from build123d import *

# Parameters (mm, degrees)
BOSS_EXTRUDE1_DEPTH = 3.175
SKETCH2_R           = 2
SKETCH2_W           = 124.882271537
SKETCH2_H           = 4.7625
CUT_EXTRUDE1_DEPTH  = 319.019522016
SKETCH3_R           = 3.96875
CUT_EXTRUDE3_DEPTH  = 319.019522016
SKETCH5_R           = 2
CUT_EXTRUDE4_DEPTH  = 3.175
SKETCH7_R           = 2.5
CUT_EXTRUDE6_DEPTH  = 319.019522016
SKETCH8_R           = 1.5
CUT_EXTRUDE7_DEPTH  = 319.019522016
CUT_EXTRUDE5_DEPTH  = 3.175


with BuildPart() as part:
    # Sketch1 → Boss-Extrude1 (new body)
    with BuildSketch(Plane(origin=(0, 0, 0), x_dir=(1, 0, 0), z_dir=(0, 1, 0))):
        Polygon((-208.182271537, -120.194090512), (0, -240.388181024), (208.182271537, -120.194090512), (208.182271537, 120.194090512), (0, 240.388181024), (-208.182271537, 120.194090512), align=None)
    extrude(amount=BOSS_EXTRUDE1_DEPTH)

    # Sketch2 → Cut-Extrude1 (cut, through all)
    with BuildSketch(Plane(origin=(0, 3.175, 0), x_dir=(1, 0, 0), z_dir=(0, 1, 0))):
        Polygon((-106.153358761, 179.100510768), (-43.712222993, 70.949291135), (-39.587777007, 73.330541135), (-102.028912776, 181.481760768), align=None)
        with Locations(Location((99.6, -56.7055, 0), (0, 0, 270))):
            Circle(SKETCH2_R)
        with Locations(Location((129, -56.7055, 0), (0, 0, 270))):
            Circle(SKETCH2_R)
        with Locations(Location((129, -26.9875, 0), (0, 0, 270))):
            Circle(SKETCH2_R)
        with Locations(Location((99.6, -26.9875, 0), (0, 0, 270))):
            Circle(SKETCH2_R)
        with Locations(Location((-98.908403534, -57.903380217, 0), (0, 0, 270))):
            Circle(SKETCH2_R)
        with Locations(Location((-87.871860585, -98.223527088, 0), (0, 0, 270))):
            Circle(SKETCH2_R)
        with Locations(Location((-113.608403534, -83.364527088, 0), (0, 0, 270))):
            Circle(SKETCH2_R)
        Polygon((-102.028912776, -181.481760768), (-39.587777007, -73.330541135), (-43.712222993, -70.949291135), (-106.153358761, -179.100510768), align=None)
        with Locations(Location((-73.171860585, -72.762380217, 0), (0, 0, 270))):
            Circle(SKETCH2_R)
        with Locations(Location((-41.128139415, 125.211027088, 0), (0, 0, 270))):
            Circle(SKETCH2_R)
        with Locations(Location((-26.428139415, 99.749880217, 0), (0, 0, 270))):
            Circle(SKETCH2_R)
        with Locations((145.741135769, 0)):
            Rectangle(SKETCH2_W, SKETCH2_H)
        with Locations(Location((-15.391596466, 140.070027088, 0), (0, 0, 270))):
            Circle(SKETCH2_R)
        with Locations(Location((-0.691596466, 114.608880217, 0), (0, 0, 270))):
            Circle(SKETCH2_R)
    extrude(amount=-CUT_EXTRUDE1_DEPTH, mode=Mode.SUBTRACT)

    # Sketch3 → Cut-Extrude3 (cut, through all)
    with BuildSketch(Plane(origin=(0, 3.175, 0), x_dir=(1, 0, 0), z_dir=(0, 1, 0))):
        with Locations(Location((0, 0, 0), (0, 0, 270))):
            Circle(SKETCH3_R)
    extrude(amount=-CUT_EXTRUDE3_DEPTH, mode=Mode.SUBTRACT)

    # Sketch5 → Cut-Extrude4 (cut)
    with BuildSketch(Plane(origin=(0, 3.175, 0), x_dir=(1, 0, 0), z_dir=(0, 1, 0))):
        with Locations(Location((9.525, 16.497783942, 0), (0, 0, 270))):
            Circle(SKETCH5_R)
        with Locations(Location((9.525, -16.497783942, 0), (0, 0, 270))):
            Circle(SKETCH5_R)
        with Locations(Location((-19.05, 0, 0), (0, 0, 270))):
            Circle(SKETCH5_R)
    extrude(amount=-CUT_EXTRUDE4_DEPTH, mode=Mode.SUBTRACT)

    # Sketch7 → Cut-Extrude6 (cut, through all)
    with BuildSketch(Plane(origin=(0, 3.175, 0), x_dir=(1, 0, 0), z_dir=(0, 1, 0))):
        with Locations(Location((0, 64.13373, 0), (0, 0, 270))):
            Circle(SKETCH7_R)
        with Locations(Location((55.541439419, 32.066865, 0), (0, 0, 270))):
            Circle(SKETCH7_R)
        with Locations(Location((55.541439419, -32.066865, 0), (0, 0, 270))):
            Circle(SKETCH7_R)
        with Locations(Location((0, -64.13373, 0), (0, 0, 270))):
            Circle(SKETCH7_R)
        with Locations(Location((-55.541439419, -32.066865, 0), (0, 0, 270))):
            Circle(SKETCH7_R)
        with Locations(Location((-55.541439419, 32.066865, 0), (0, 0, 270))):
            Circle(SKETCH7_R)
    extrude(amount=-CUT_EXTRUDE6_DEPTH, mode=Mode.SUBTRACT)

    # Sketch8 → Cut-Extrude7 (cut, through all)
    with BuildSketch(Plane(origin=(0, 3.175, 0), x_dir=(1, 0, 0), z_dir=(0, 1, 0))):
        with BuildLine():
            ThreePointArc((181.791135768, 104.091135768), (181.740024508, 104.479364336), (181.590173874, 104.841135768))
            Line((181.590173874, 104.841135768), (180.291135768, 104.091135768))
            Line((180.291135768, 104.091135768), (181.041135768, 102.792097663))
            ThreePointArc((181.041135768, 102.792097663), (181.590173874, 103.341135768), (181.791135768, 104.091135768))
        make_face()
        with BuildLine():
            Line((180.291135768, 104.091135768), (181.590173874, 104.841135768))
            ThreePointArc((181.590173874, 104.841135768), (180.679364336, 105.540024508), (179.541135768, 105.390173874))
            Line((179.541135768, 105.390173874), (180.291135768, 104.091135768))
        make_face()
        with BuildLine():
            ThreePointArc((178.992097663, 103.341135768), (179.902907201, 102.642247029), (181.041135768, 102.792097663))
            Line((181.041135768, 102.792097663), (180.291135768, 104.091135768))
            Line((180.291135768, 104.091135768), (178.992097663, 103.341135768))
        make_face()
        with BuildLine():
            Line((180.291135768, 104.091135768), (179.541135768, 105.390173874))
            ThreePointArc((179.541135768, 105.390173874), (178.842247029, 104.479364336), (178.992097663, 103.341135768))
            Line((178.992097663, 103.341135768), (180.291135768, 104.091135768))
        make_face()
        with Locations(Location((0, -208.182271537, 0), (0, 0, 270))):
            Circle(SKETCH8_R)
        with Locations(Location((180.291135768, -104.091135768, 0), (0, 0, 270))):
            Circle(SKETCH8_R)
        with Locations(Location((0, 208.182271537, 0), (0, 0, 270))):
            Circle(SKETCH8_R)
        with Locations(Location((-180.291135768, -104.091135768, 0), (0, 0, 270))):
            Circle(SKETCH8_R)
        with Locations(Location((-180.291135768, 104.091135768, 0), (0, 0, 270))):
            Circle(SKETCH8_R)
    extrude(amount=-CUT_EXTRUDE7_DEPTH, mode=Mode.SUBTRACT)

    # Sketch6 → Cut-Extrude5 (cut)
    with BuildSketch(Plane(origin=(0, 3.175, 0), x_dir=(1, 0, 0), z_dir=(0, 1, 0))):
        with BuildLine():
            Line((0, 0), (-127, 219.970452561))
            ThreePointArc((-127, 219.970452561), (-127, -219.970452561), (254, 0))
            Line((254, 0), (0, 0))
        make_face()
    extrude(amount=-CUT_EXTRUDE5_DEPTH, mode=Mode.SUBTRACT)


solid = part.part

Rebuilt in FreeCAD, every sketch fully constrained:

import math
import FreeCAD as App
import Part
import Sketcher

V = App.Vector
Q = App.Units.Quantity


def add_polygon(sketch, points):
    """Adds a closed chain of lines whose ends are joined by coincident constraints."""
    first, n = sketch.GeometryCount, len(points)
    for a, b in zip(points, points[1:] + points[:1]):
        sketch.addGeometry(Part.LineSegment(App.Vector(*a, 0), App.Vector(*b, 0)), False)
    for i in range(n):
        sketch.addConstraint(Sketcher.Constraint("Coincident", first + i, 2, first + (i + 1) % n, 1))

doc = App.newDocument("Part")
body = doc.addObject("PartDesign::Body", "Body")

sketch1 = doc.addObject("Sketcher::SketchObject", "Sketch")
body.addObject(sketch1)
sketch1.AttachmentSupport = (doc.XZ_Plane, [""])
sketch1.MapMode = "FlatFace"
add_polygon(sketch1, [(-208.182272, 120.194091), (0, 240.388181), (208.182272, 120.194091), (208.182272, -120.194091), (0, -240.388181), (-208.182272, -120.194091)])
sketch1.addConstraint(Sketcher.Constraint("Vertical", 2))
sketch1.addConstraint(Sketcher.Constraint("Vertical", 5))
sketch1.addConstraint(Sketcher.Constraint("Symmetric", 0, 2, 3, 2, -1, 1))
sketch1.addConstraint(Sketcher.Constraint("Symmetric", 1, 2, 4, 2, -1, 1))
sketch1.addConstraint(Sketcher.Constraint("PointOnObject", 0, 2, -2))
sketch1.addConstraint(Sketcher.Constraint("Parallel", 0, 3))
sketch1.addConstraint(Sketcher.Constraint("Horizontal", 2, 2, 4, 2))
sketch1.addConstraint(Sketcher.Constraint("Angle", 0, Q("30 deg")))
sketch1.addConstraint(Sketcher.Constraint("DistanceY", 2, 2, 2, 1, Q("240.388181 mm")))
sketch1.addConstraint(Sketcher.Constraint("Distance", 0, Q("240.388181 mm")))
pad1 = doc.addObject("PartDesign::Pad", "Pad")
body.addObject(pad1)
pad1.Profile = sketch1
pad1.Length = Q("0.125 in")
pad1.Reversed = True

sketch2 = doc.addObject("Sketcher::SketchObject", "Sketch001")
body.addObject(sketch2)
sketch2.AttachmentSupport = (doc.XZ_Plane, [""])
sketch2.MapMode = "FlatFace"
sketch2.AttachmentOffset = App.Placement(V(0, 0, -0.125 * 25.4), App.Rotation())
add_polygon(sketch2, [(-106.153359, -179.100511), (-43.712223, -70.949291), (-39.587777, -73.330541), (-102.028913, -181.481761)])
sketch2.addGeometry(Part.Circle(V(99.6, 56.7055, 0), V(0, 0, 1), 2), False)
sketch2.addGeometry(Part.Circle(V(129, 56.7055, 0), V(0, 0, 1), 2), False)
sketch2.addGeometry(Part.Circle(V(129, 26.9875, 0), V(0, 0, 1), 2), False)
sketch2.addGeometry(Part.Circle(V(99.6, 26.9875, 0), V(0, 0, 1), 2), False)
sketch2.addGeometry(Part.Circle(V(-98.908404, 57.90338, 0), V(0, 0, 1), 2), False)
sketch2.addGeometry(Part.Circle(V(-87.871861, 98.223527, 0), V(0, 0, 1), 2), False)
sketch2.addGeometry(Part.Circle(V(-113.608404, 83.364527, 0), V(0, 0, 1), 2), False)
add_polygon(sketch2, [(-102.028913, 181.481761), (-39.587777, 73.330541), (-43.712223, 70.949291), (-106.153359, 179.100511)])
sketch2.addGeometry(Part.Circle(V(-73.171861, 72.76238, 0), V(0, 0, 1), 2), False)
sketch2.addGeometry(Part.Circle(V(-41.128139, -125.211027, 0), V(0, 0, 1), 2), False)
sketch2.addGeometry(Part.Circle(V(-26.428139, -99.74988, 0), V(0, 0, 1), 2), False)
add_polygon(sketch2, [(83.3, -2.38125), (83.3, 2.38125), (208.182272, 2.38125), (208.182272, -2.38125)])
sketch2.addGeometry(Part.Circle(V(-15.391596, -140.070027, 0), V(0, 0, 1), 2), False)
sketch2.addGeometry(Part.Circle(V(-0.691596, -114.60888, 0), V(0, 0, 1), 2), False)
sketch2.addConstraint(Sketcher.Constraint("Vertical", 18))
sketch2.addConstraint(Sketcher.Constraint("Horizontal", 19))
sketch2.addConstraint(Sketcher.Constraint("Vertical", 20))
sketch2.addConstraint(Sketcher.Constraint("Horizontal", 21))
sketch2.addConstraint(Sketcher.Constraint("Equal", 4, 5))
sketch2.addConstraint(Sketcher.Constraint("Equal", 5, 6))
sketch2.addConstraint(Sketcher.Constraint("Equal", 6, 7))
sketch2.addConstraint(Sketcher.Constraint("Equal", 7, 8))
sketch2.addConstraint(Sketcher.Constraint("Equal", 8, 9))
sketch2.addConstraint(Sketcher.Constraint("Equal", 9, 10))
sketch2.addConstraint(Sketcher.Constraint("Equal", 10, 15))
sketch2.addConstraint(Sketcher.Constraint("Equal", 15, 16))
sketch2.addConstraint(Sketcher.Constraint("Equal", 16, 17))
sketch2.addConstraint(Sketcher.Constraint("Equal", 17, 22))
sketch2.addConstraint(Sketcher.Constraint("Equal", 22, 23))
sketch2.addConstraint(Sketcher.Constraint("Symmetric", 1, 2, 11, 2, -1))
sketch2.addConstraint(Sketcher.Constraint("Symmetric", 0, 2, 12, 2, -1))
sketch2.addConstraint(Sketcher.Constraint("Symmetric", 3, 2, 13, 2, -1))
sketch2.addConstraint(Sketcher.Constraint("Symmetric", 2, 2, 14, 2, -1))
sketch2.addConstraint(Sketcher.Constraint("Perpendicular", 0, 1))
sketch2.addConstraint(Sketcher.Constraint("Perpendicular", 1, 2))
sketch2.addConstraint(Sketcher.Constraint("Perpendicular", 2, 3))
sketch2.addConstraint(Sketcher.Constraint("Horizontal", 4, 3, 5, 3))
sketch2.addConstraint(Sketcher.Constraint("Horizontal", 6, 3, 7, 3))
sketch2.addConstraint(Sketcher.Constraint("Vertical", 5, 3, 6, 3))
sketch2.addConstraint(Sketcher.Constraint("Vertical", 4, 3, 7, 3))
sketch2.addConstraint(Sketcher.Constraint("Angle", 0, Q("60 deg")))
sketch2.addConstraint(Sketcher.Constraint("Diameter", 4, Q("4 mm")))
sketch2.addConstraint(Sketcher.Constraint("DistanceY", 18, 1, 18, 2, Q("0.1875 in")))
sketch2.addConstraint(Sketcher.Constraint("DistanceY", 6, 3, 5, 3, Q("1.17 in")))
sketch2.addConstraint(Sketcher.Constraint("Distance", 1, Q("0.1875 in")))
sketch2.addConstraint(Sketcher.Constraint("DistanceY", -1, 1, 6, 3, Q("1.0625 in")))
sketch2.addConstraint(Sketcher.Constraint("DistanceY", -1, 1, 18, 2, Q("0.09375 in")))
sketch2.addConstraint(Sketcher.Constraint("DistanceY", 10, 3, 9, 3, Q("0.585 in")))
sketch2.addConstraint(Sketcher.Constraint("DistanceY", 8, 3, 15, 3, Q("0.585 in")))
sketch2.addConstraint(Sketcher.Constraint("DistanceY", 22, 3, 16, 3, Q("0.585 in")))
sketch2.addConstraint(Sketcher.Constraint("DistanceY", 23, 3, 17, 3, Q("0.585 in")))
sketch2.addConstraint(Sketcher.Constraint("DistanceX", 19, 1, 19, 2, Q("124.882272 mm")))
sketch2.addConstraint(Sketcher.Constraint("DistanceX", -1, 1, 4, 3, Q("99.6 mm")))
sketch2.addConstraint(Sketcher.Constraint("DistanceX", -1, 1, 5, 3, Q("129 mm")))
sketch2.addConstraint(Sketcher.Constraint("DistanceX", -1, 1, 18, 2, Q("83.3 mm")))
sketch2.addConstraint(Sketcher.Constraint("DistanceX", 10, 3, 8, 3, Q("14.7 mm")))
sketch2.addConstraint(Sketcher.Constraint("DistanceX", 9, 3, 15, 3, Q("14.7 mm")))
sketch2.addConstraint(Sketcher.Constraint("DistanceX", 16, 3, 17, 3, Q("14.7 mm")))
sketch2.addConstraint(Sketcher.Constraint("DistanceX", 22, 3, 23, 3, Q("14.7 mm")))
sketch2.addConstraint(Sketcher.Constraint("DistanceX", 13, 2, 9, 3, Q("18.281498 mm")))
sketch2.addConstraint(Sketcher.Constraint("Distance", 0, Q("124.882272 mm")))
sketch2.addConstraint(Sketcher.Constraint("DistanceY", -1, 1, 8, 3, Q("57.90338 mm")))
sketch2.addConstraint(Sketcher.Constraint("DistanceX", 9, 3, -1, 1, Q("87.871861 mm")))
sketch2.addConstraint(Sketcher.Constraint("DistanceX", 16, 3, -1, 1, Q("41.128139 mm")))
sketch2.addConstraint(Sketcher.Constraint("DistanceY", 17, 3, -1, 1, Q("99.74988 mm")))
sketch2.addConstraint(Sketcher.Constraint("DistanceY", 0, 2, -1, 1, Q("70.949291 mm")))
sketch2.addConstraint(Sketcher.Constraint("DistanceX", 8, 3, 0, 2, Q("55.196181 mm")))
sketch2.addConstraint(Sketcher.Constraint("DistanceX", 1, 2, 23, 3, Q("38.896181 mm")))
sketch2.addConstraint(Sketcher.Constraint("DistanceY", -1, 1, 9, 3, Q("98.223527 mm")))
sketch2.addConstraint(Sketcher.Constraint("DistanceY", 16, 3, -1, 1, Q("125.211027 mm")))
pocket1 = doc.addObject("PartDesign::Pocket", "Pocket")
body.addObject(pocket1)
pocket1.Profile = sketch2
pocket1.Type = "ThroughAll"
pocket1.Reversed = True

sketch3 = doc.addObject("Sketcher::SketchObject", "Sketch002")
body.addObject(sketch3)
sketch3.AttachmentSupport = (doc.XZ_Plane, [""])
sketch3.MapMode = "FlatFace"
sketch3.AttachmentOffset = App.Placement(V(0, 0, -0.125 * 25.4), App.Rotation())
sketch3.addGeometry(Part.Circle(V(0, 0, 0), V(0, 0, 1), 3.96875), False)
sketch3.addConstraint(Sketcher.Constraint("Coincident", 0, 3, -1, 1))
sketch3.addConstraint(Sketcher.Constraint("Diameter", 0, Q("0.3125 in")))
pocket2 = doc.addObject("PartDesign::Pocket", "Pocket001")
body.addObject(pocket2)
pocket2.Profile = sketch3
pocket2.Type = "ThroughAll"
pocket2.Reversed = True

sketch4 = doc.addObject("Sketcher::SketchObject", "Sketch003")
body.addObject(sketch4)
sketch4.AttachmentSupport = (doc.XZ_Plane, [""])
sketch4.MapMode = "FlatFace"
sketch4.AttachmentOffset = App.Placement(V(0, 0, -0.125 * 25.4), App.Rotation())
sketch4.addGeometry(Part.Circle(V(9.525, -16.497784, 0), V(0, 0, 1), 2), False)
sketch4.addGeometry(Part.Circle(V(9.525, 16.497784, 0), V(0, 0, 1), 2), False)
sketch4.addGeometry(Part.Circle(V(-19.05, 0, 0), V(0, 0, 1), 2), False)
sketch4.addConstraint(Sketcher.Constraint("Equal", 0, 1))
sketch4.addConstraint(Sketcher.Constraint("Equal", 1, 2))
sketch4.addConstraint(Sketcher.Constraint("Symmetric", 0, 3, 1, 3, -1))
sketch4.addConstraint(Sketcher.Constraint("PointOnObject", 2, 3, -1))
sketch4.addConstraint(Sketcher.Constraint("Diameter", 0, Q("4 mm")))
sketch4.addConstraint(Sketcher.Constraint("DistanceX", 2, 3, -1, 1, Q("0.75 in")))
sketch4.addConstraint(Sketcher.Constraint("DistanceX", -1, 1, 0, 3, Q("0.375 in")))
sketch4.addConstraint(Sketcher.Constraint("DistanceY", 0, 3, -1, 1, Q("16.497784 mm")))
pocket3 = doc.addObject("PartDesign::Pocket", "Pocket002")
body.addObject(pocket3)
pocket3.Profile = sketch4
pocket3.Length = Q("0.125 in")
pocket3.Reversed = True

sketch5 = doc.addObject("Sketcher::SketchObject", "Sketch004")
body.addObject(sketch5)
sketch5.AttachmentSupport = (doc.XZ_Plane, [""])
sketch5.MapMode = "FlatFace"
sketch5.AttachmentOffset = App.Placement(V(0, 0, -0.125 * 25.4), App.Rotation())
sketch5.addGeometry(Part.Circle(V(0, -64.13373, 0), V(0, 0, 1), 2.5), False)
sketch5.addGeometry(Part.Circle(V(55.541439, -32.066865, 0), V(0, 0, 1), 2.5), False)
sketch5.addGeometry(Part.Circle(V(55.541439, 32.066865, 0), V(0, 0, 1), 2.5), False)
sketch5.addGeometry(Part.Circle(V(0, 64.13373, 0), V(0, 0, 1), 2.5), False)
sketch5.addGeometry(Part.Circle(V(-55.541439, 32.066865, 0), V(0, 0, 1), 2.5), False)
sketch5.addGeometry(Part.Circle(V(-55.541439, -32.066865, 0), V(0, 0, 1), 2.5), False)
sketch5.addConstraint(Sketcher.Constraint("Equal", 0, 1))
sketch5.addConstraint(Sketcher.Constraint("Equal", 1, 2))
sketch5.addConstraint(Sketcher.Constraint("Equal", 2, 3))
sketch5.addConstraint(Sketcher.Constraint("Equal", 3, 4))
sketch5.addConstraint(Sketcher.Constraint("Equal", 4, 5))
sketch5.addConstraint(Sketcher.Constraint("Symmetric", 0, 3, 3, 3, -1, 1))
sketch5.addConstraint(Sketcher.Constraint("Symmetric", 1, 3, 4, 3, -1, 1))
sketch5.addConstraint(Sketcher.Constraint("Symmetric", 2, 3, 5, 3, -1, 1))
sketch5.addConstraint(Sketcher.Constraint("Symmetric", 2, 3, 4, 3, -2))
sketch5.addConstraint(Sketcher.Constraint("PointOnObject", 0, 3, -2))
sketch5.addConstraint(Sketcher.Constraint("Diameter", 0, Q("5 mm")))
sketch5.addConstraint(Sketcher.Constraint("DistanceY", 0, 3, 3, 3, Q("5.0499 in")))
sketch5.addConstraint(Sketcher.Constraint("DistanceX", -1, 1, 1, 3, Q("55.541439 mm")))
sketch5.addConstraint(Sketcher.Constraint("DistanceY", 1, 3, 2, 3, Q("64.13373 mm")))
pocket4 = doc.addObject("PartDesign::Pocket", "Pocket003")
body.addObject(pocket4)
pocket4.Profile = sketch5
pocket4.Type = "ThroughAll"
pocket4.Reversed = True

sketch6 = doc.addObject("Sketcher::SketchObject", "Sketch005")
body.addObject(sketch6)
sketch6.AttachmentSupport = (doc.XZ_Plane, [""])
sketch6.MapMode = "FlatFace"
sketch6.AttachmentOffset = App.Placement(V(0, 0, -0.125 * 25.4), App.Rotation())
sketch6.addGeometry(Part.ArcOfCircle(Part.Circle(V(180.291136, -104.091136, 0), V(0, 0, 1), 1.5), math.radians(-120), math.radians(-30)), False)
sketch6.addGeometry(Part.ArcOfCircle(Part.Circle(V(180.291136, -104.091136, 0), V(0, 0, 1), 1.5), math.radians(150), math.radians(240)), False)
sketch6.addGeometry(Part.ArcOfCircle(Part.Circle(V(180.291136, -104.091136, 0), V(0, 0, 1), 1.5), math.radians(60), math.radians(150)), False)
sketch6.addGeometry(Part.ArcOfCircle(Part.Circle(V(180.291136, -104.091136, 0), V(0, 0, 1), 1.5), math.radians(0), math.radians(60)), False)
sketch6.addGeometry(Part.ArcOfCircle(Part.Circle(V(180.291136, -104.091136, 0), V(0, 0, 1), 1.5), math.radians(-30), math.radians(0)), False)
sketch6.addGeometry(Part.Circle(V(0, 208.182272, 0), V(0, 0, 1), 1.5), False)
sketch6.addGeometry(Part.Circle(V(180.291136, 104.091136, 0), V(0, 0, 1), 1.5), False)
sketch6.addGeometry(Part.Circle(V(0, -208.182272, 0), V(0, 0, 1), 1.5), False)
sketch6.addGeometry(Part.Circle(V(-180.291136, 104.091136, 0), V(0, 0, 1), 1.5), False)
sketch6.addGeometry(Part.Circle(V(-180.291136, -104.091136, 0), V(0, 0, 1), 1.5), False)
sketch6.addConstraint(Sketcher.Constraint("Tangent", 0, 1, 1, 2))
sketch6.addConstraint(Sketcher.Constraint("Tangent", 1, 1, 2, 2))
sketch6.addConstraint(Sketcher.Constraint("Tangent", 2, 1, 3, 2))
sketch6.addConstraint(Sketcher.Constraint("Tangent", 3, 1, 4, 2))
sketch6.addConstraint(Sketcher.Constraint("Tangent", 4, 1, 0, 2))
sketch6.addConstraint(Sketcher.Constraint("Coincident", 2, 3, 0, 3))
sketch6.addConstraint(Sketcher.Constraint("Equal", 4, 5))
sketch6.addConstraint(Sketcher.Constraint("Equal", 5, 6))
sketch6.addConstraint(Sketcher.Constraint("Equal", 6, 7))
sketch6.addConstraint(Sketcher.Constraint("Equal", 7, 8))
sketch6.addConstraint(Sketcher.Constraint("Equal", 8, 9))
sketch6.addConstraint(Sketcher.Constraint("Symmetric", 5, 3, 7, 3, -1, 1))
sketch6.addConstraint(Sketcher.Constraint("Symmetric", 0, 3, 8, 3, -1, 1))
sketch6.addConstraint(Sketcher.Constraint("Symmetric", 6, 3, 9, 3, -1, 1))
sketch6.addConstraint(Sketcher.Constraint("Symmetric", 6, 3, 8, 3, -2))
sketch6.addConstraint(Sketcher.Constraint("PointOnObject", 5, 3, -2))
sketch6.addConstraint(Sketcher.Constraint("Horizontal", 9, 3, 3, 1))
sketch6.addConstraint(Sketcher.Constraint("Diameter", 5, Q("3 mm")))
sketch6.addConstraint(Sketcher.Constraint("DistanceX", 0, 1, 0, 3, Q("0.75 mm")))
sketch6.addConstraint(Sketcher.Constraint("DistanceY", 2, 3, 1, 1, Q("0.75 mm")))
sketch6.addConstraint(Sketcher.Constraint("DistanceX", 3, 3, 2, 1, Q("0.75 mm")))
sketch6.addConstraint(Sketcher.Constraint("DistanceY", 4, 1, 3, 1, Q("0.75 mm")))
sketch6.addConstraint(Sketcher.Constraint("DistanceY", -1, 1, 5, 3, Q("208.182272 mm")))
sketch6.addConstraint(Sketcher.Constraint("DistanceY", 3, 3, 6, 3, Q("208.182272 mm")))
sketch6.addConstraint(Sketcher.Constraint("DistanceX", 8, 3, 6, 3, Q("360.582272 mm")))
pocket5 = doc.addObject("PartDesign::Pocket", "Pocket004")
body.addObject(pocket5)
pocket5.Profile = sketch6
pocket5.Type = "ThroughAll"
pocket5.Reversed = True

sketch7 = doc.addObject("Sketcher::SketchObject", "Sketch006")
body.addObject(sketch7)
sketch7.AttachmentSupport = (doc.XZ_Plane, [""])
sketch7.MapMode = "FlatFace"
sketch7.AttachmentOffset = App.Placement(V(0, 0, -0.125 * 25.4), App.Rotation())
sketch7.addGeometry(Part.LineSegment(V(0, 0, 0), V(-127, -219.970453, 0)), False)
sketch7.addGeometry(Part.ArcOfCircle(Part.Circle(V(0, 0, 0), V(0, 0, 1), 254), math.radians(0), math.radians(240)), False)
sketch7.addGeometry(Part.LineSegment(V(254, 0, 0), V(0, 0, 0)), False)
sketch7.addConstraint(Sketcher.Constraint("Coincident", 0, 2, 1, 2))
sketch7.addConstraint(Sketcher.Constraint("Coincident", 1, 1, 2, 1))
sketch7.addConstraint(Sketcher.Constraint("Coincident", 2, 2, 0, 1))
sketch7.addConstraint(Sketcher.Constraint("Horizontal", 2))
sketch7.addConstraint(Sketcher.Constraint("Coincident", 1, 3, -1, 1))
sketch7.addConstraint(Sketcher.Constraint("Coincident", 2, 2, -1, 1))
sketch7.addConstraint(Sketcher.Constraint("Radius", 1, Q("10 in")))
sketch7.addConstraint(Sketcher.Constraint("DistanceX", 0, 2, -1, 1, Q("5 in")))
pocket6 = doc.addObject("PartDesign::Pocket", "Pocket005")
body.addObject(pocket6)
pocket6.Profile = sketch7
pocket6.Length = Q("0.125 in")
pocket6.Reversed = True

doc.recompute()
